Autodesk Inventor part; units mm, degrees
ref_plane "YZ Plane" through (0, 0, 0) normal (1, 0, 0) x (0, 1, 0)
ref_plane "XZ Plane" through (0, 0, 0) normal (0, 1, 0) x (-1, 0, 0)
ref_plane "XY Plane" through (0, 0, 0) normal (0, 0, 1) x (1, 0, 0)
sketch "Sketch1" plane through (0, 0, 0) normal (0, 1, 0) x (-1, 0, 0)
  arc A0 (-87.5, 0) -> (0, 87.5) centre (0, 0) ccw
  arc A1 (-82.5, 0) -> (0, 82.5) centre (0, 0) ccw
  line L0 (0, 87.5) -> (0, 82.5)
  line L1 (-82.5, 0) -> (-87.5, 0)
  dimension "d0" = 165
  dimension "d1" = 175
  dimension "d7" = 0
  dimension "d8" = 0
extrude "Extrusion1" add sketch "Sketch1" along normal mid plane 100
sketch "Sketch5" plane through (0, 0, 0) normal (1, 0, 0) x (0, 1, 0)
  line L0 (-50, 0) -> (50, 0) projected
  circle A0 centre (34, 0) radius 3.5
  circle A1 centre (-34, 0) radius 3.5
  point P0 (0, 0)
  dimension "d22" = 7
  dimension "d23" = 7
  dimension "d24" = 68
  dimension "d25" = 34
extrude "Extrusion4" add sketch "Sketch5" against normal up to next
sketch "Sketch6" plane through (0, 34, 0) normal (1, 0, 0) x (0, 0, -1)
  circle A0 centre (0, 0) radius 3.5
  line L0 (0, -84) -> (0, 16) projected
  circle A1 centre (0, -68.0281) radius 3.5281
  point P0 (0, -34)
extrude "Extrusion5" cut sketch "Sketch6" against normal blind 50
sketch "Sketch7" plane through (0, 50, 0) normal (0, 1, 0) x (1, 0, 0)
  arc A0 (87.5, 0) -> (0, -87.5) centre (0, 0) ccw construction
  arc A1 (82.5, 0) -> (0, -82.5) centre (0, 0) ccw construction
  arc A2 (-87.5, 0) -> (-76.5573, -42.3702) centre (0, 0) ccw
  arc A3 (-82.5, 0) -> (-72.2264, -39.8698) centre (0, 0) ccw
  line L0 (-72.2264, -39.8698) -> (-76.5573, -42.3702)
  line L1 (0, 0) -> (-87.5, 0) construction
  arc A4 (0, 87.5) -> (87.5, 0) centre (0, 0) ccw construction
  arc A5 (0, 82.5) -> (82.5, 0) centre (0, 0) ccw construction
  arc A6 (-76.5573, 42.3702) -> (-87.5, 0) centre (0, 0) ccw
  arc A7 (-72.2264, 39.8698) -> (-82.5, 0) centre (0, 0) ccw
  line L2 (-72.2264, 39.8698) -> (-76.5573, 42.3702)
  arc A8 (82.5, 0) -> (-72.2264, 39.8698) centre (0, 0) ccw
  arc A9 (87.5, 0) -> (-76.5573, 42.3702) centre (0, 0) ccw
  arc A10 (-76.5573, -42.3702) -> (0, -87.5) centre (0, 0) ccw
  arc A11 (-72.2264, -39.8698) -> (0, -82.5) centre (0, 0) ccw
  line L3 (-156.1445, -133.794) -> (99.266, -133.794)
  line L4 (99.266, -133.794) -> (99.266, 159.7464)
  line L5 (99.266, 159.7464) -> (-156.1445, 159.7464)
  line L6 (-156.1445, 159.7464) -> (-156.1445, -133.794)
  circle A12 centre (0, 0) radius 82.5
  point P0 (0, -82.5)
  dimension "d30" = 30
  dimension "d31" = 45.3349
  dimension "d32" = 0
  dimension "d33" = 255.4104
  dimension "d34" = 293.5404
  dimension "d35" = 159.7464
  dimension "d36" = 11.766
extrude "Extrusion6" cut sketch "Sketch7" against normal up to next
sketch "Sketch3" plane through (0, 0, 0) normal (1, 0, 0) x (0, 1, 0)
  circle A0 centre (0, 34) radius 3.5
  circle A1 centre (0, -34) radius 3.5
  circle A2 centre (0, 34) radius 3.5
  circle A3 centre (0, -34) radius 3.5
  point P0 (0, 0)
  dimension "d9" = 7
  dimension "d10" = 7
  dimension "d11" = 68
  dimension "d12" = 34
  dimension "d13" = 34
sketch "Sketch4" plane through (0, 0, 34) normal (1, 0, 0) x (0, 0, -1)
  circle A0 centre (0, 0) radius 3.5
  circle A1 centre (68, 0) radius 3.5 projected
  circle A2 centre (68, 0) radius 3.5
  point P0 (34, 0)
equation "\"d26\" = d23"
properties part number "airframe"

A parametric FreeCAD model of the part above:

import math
import FreeCAD as App
import Part
import Sketcher
Q = App.Units.Quantity


def add_polygon(sketch, points):
    """Adds a closed chain of lines whose ends are joined by coincident constraints."""
    first, n = sketch.GeometryCount, len(points)
    for a, b in zip(points, points[1:] + points[:1]):
        sketch.addGeometry(Part.LineSegment(App.Vector(*a, 0), App.Vector(*b, 0)), False)
    for i in range(n):
        sketch.addConstraint(Sketcher.Constraint("Coincident", first + i, 2, first + (i + 1) % n, 1))

doc = App.newDocument("Part")
params = doc.addObject("Spreadsheet::Sheet", "Params")
for row, (alias, value) in enumerate([
    ("sketch1_radius", "87.5 mm"),
    ("sketch1_radius2", "82.5 mm"),
    ("pad1_length", "100 mm"),
    ("sketch2_diameter", "7 mm"),
    ("sketch3_diameter", "7 mm"),
    ("pocket1_length", "50 mm"),
    ("sketch4_radius", "87.5 mm"),
    ("sketch4_radius2", "82.5 mm"),
    ("pocket2_length", "100 mm"),
], start=1):
    params.set(f"A{row}", alias)
    params.set(f"B{row}", "=" + value)
    params.setAlias(f"B{row}", alias)

body = doc.addObject("PartDesign::Body", "Body")

# Sketch on XZ plane
sketch1 = body.newObject("Sketcher::SketchObject", "Sketch")
sketch1.AttachmentSupport = (doc.getObject("XZ_Plane"), [""])
sketch1.MapMode = "FlatFace"
sketch1.addGeometry(Part.LineSegment(App.Vector(82, 0, 0), App.Vector(88, 0, 0)), False)
sketch1.addGeometry(Part.ArcOfCircle(Part.Circle(App.Vector(0, 0, 0), App.Vector(0, 0, 1), 88), math.radians(90), math.radians(360)), False)
sketch1.addGeometry(Part.LineSegment(App.Vector(0, 88, 0), App.Vector(0, 82, 0)), False)
sketch1.addGeometry(Part.ArcOfCircle(Part.Circle(App.Vector(0, 0, 0), App.Vector(0, 0, 1), 82), math.radians(90), math.radians(360)), False)
sketch1.addConstraint(Sketcher.Constraint("Coincident", 0, 2, 1, 2))
sketch1.addConstraint(Sketcher.Constraint("Coincident", 1, 1, 2, 1))
sketch1.addConstraint(Sketcher.Constraint("Coincident", 2, 2, 3, 1))
sketch1.addConstraint(Sketcher.Constraint("Coincident", 3, 2, 0, 1))
sketch1.addConstraint(Sketcher.Constraint("Horizontal", 0))
sketch1.addConstraint(Sketcher.Constraint("Vertical", 2))
sketch1.addConstraint(Sketcher.Constraint("Coincident", 1, 3, -1, 1))
sketch1.addConstraint(Sketcher.Constraint("Coincident", 3, 3, -1, 1))
sketch1.addConstraint(Sketcher.Constraint("PointOnObject", 0, 2, -1))
sketch1.addConstraint(Sketcher.Constraint("PointOnObject", 1, 1, -2))
sketch1.addConstraint(Sketcher.Constraint("Radius", 1, 87.5))
sketch1.addConstraint(Sketcher.Constraint("Radius", 3, 82.5))
sketch1.setExpression("Constraints[10]", "Params.sketch1_radius")
sketch1.setExpression("Constraints[11]", "Params.sketch1_radius2")
pad1 = body.newObject("PartDesign::Pad", "Pad")
pad1.Profile = sketch1
pad1.setExpression("Length", "Params.pad1_length")
pad1.Midplane = True

# Sketch on YZ plane
sketch2 = body.newObject("Sketcher::SketchObject", "Sketch001")
sketch2.AttachmentSupport = (doc.getObject("YZ_Plane"), [""])
sketch2.MapMode = "FlatFace"
sketch2.addGeometry(Part.Circle(App.Vector(-34, 0, 0), App.Vector(0, 0, 1), 3.5), False)
sketch2.addGeometry(Part.Circle(App.Vector(34, 0, 0), App.Vector(0, 0, 1), 3.5), False)
sketch2.addConstraint(Sketcher.Constraint("Equal", 0, 1))
sketch2.addConstraint(Sketcher.Constraint("Symmetric", 0, 3, 1, 3, -1, 1))
sketch2.addConstraint(Sketcher.Constraint("PointOnObject", 0, 3, -1))
sketch2.addConstraint(Sketcher.Constraint("Diameter", 0, 7.0))
sketch2.addConstraint(Sketcher.Constraint("DistanceX", 0, 3, -1, 1, 34.0))
sketch2.setExpression("Constraints[3]", "Params.sketch2_diameter")
pad2 = body.newObject("PartDesign::Pad", "Pad001")
pad2.Profile = sketch2
pad2.Type = "UpToFirst"
pad2.Reversed = True

# Sketch on YZ plane
sketch3 = body.newObject("Sketcher::SketchObject", "Sketch002")
sketch3.AttachmentSupport = (doc.getObject("YZ_Plane"), [""])
sketch3.MapMode = "FlatFace"
sketch3.addGeometry(Part.Circle(App.Vector(34, 0, 0), App.Vector(0, 0, 1), 3.5), False)
sketch3.addGeometry(Part.Circle(App.Vector(-34, 0, 0), App.Vector(0, 0, 1), 3.5), False)
sketch3.addConstraint(Sketcher.Constraint("PointOnObject", 0, 3, -1))
sketch3.addConstraint(Sketcher.Constraint("PointOnObject", 1, 3, -1))
sketch3.addConstraint(Sketcher.Constraint("Diameter", 0, 7.0))
sketch3.addConstraint(Sketcher.Constraint("DistanceX", -1, 1, 0, 3, 34.0))
sketch3.addConstraint(Sketcher.Constraint("Diameter", 1, 7.0562))
sketch3.addConstraint(Sketcher.Constraint("DistanceX", 1, 3, -1, 1, 34.028))
sketch3.setExpression("Constraints[2]", "Params.sketch3_diameter")
pocket1 = body.newObject("PartDesign::Pocket", "Pocket")
pocket1.Profile = sketch3
pocket1.setExpression("Length", "Params.pocket1_length")

# Sketch on XZ plane
sketch4 = body.newObject("Sketcher::SketchObject", "Sketch003")
sketch4.AttachmentSupport = (doc.getObject("XZ_Plane"), [""])
sketch4.MapMode = "FlatFace"
sketch4.AttachmentOffset = App.Placement(App.Vector(0, 0, -50), App.Rotation())
add_polygon(sketch4, [(-156, -160), (-156, 134), (99, 134), (99, -160)])  # lines 0-3
sketch4.addGeometry(Part.ArcOfCircle(Part.Circle(App.Vector(0, 0, 0), App.Vector(0, 0, 1), 88), math.radians(151), math.radians(180)), False)  # 4
sketch4.addGeometry(Part.ArcOfCircle(Part.Circle(App.Vector(0, 0, 0), App.Vector(0, 0, 1), 88), math.radians(180), math.radians(209)), False)  # 5
sketch4.addGeometry(Part.LineSegment(App.Vector(-77, -42, 0), App.Vector(-72, -40, 0)), False)  # 6
sketch4.addGeometry(Part.ArcOfCircle(Part.Circle(App.Vector(0, 0, 0), App.Vector(0, 0, 1), 83), math.radians(-151), math.radians(0)), False)  # 7
sketch4.addGeometry(Part.ArcOfCircle(Part.Circle(App.Vector(0, 0, 0), App.Vector(0, 0, 1), 82), math.radians(0), math.radians(90)), False)  # 8
sketch4.addGeometry(Part.ArcOfCircle(Part.Circle(App.Vector(0, 0, 0), App.Vector(0, 0, 1), 82), math.radians(90), math.radians(151)), False)  # 9
sketch4.addGeometry(Part.LineSegment(App.Vector(-72, 40, 0), App.Vector(-77, 42, 0)), False)  # 10
sketch4.addConstraint(Sketcher.Constraint("Tangent", 4, 2, 5, 1))
sketch4.addConstraint(Sketcher.Constraint("Coincident", 5, 2, 6, 1))
sketch4.addConstraint(Sketcher.Constraint("Coincident", 6, 2, 7, 1))
sketch4.addConstraint(Sketcher.Constraint("Tangent", 7, 2, 8, 1))
sketch4.addConstraint(Sketcher.Constraint("Tangent", 8, 2, 9, 1))
sketch4.addConstraint(Sketcher.Constraint("Coincident", 9, 2, 10, 1))
sketch4.addConstraint(Sketcher.Constraint("Coincident", 10, 2, 4, 1))
sketch4.addConstraint(Sketcher.Constraint("Vertical", 0))
sketch4.addConstraint(Sketcher.Constraint("Horizontal", 1))
sketch4.addConstraint(Sketcher.Constraint("Vertical", 2))
sketch4.addConstraint(Sketcher.Constraint("Horizontal", 3))
sketch4.addConstraint(Sketcher.Constraint("Coincident", 4, 3, -1, 1))
sketch4.addConstraint(Sketcher.Constraint("Coincident", 7, 3, -1, 1))
sketch4.addConstraint(Sketcher.Constraint("Coincident", 9, 3, -1, 1))
sketch4.addConstraint(Sketcher.Constraint("Equal", 4, 5))
sketch4.addConstraint(Sketcher.Constraint("PointOnObject", 4, 2, -1))
sketch4.addConstraint(Sketcher.Constraint("PointOnObject", 7, 2, -1))
sketch4.addConstraint(Sketcher.Constraint("PointOnObject", 8, 2, -2))
sketch4.addConstraint(Sketcher.Constraint("Vertical", 6, 2, 9, 2))
sketch4.addConstraint(Sketcher.Constraint("Vertical", 5, 2, 10, 2))
sketch4.addConstraint(Sketcher.Constraint("Angle", 6, Q("29.9995 deg")))
sketch4.addConstraint(Sketcher.Constraint("Radius", 4, 87.5))
sketch4.addConstraint(Sketcher.Constraint("Radius", 7, 82.5))
sketch4.addConstraint(Sketcher.Constraint("DistanceX", 1, 1, 1, 2, 255.4105))
sketch4.addConstraint(Sketcher.Constraint("DistanceY", 0, 1, 0, 2, 293.5404))
sketch4.addConstraint(Sketcher.Constraint("DistanceY", 2, 2, -1, 1, 159.7464))
sketch4.addConstraint(Sketcher.Constraint("DistanceY", 5, 2, 9, 2, 82.24))
sketch4.addConstraint(Sketcher.Constraint("DistanceX", -1, 1, 1, 2, 99.266))
sketch4.setExpression("Constraints[25]", "Params.sketch4_radius")
sketch4.setExpression("Constraints[26]", "Params.sketch4_radius2")
pocket2 = body.newObject("PartDesign::Pocket", "Pocket001")
pocket2.Profile = sketch4
pocket2.setExpression("Length", "Params.pocket2_length")
pocket2.Reversed = True

doc.recompute()
